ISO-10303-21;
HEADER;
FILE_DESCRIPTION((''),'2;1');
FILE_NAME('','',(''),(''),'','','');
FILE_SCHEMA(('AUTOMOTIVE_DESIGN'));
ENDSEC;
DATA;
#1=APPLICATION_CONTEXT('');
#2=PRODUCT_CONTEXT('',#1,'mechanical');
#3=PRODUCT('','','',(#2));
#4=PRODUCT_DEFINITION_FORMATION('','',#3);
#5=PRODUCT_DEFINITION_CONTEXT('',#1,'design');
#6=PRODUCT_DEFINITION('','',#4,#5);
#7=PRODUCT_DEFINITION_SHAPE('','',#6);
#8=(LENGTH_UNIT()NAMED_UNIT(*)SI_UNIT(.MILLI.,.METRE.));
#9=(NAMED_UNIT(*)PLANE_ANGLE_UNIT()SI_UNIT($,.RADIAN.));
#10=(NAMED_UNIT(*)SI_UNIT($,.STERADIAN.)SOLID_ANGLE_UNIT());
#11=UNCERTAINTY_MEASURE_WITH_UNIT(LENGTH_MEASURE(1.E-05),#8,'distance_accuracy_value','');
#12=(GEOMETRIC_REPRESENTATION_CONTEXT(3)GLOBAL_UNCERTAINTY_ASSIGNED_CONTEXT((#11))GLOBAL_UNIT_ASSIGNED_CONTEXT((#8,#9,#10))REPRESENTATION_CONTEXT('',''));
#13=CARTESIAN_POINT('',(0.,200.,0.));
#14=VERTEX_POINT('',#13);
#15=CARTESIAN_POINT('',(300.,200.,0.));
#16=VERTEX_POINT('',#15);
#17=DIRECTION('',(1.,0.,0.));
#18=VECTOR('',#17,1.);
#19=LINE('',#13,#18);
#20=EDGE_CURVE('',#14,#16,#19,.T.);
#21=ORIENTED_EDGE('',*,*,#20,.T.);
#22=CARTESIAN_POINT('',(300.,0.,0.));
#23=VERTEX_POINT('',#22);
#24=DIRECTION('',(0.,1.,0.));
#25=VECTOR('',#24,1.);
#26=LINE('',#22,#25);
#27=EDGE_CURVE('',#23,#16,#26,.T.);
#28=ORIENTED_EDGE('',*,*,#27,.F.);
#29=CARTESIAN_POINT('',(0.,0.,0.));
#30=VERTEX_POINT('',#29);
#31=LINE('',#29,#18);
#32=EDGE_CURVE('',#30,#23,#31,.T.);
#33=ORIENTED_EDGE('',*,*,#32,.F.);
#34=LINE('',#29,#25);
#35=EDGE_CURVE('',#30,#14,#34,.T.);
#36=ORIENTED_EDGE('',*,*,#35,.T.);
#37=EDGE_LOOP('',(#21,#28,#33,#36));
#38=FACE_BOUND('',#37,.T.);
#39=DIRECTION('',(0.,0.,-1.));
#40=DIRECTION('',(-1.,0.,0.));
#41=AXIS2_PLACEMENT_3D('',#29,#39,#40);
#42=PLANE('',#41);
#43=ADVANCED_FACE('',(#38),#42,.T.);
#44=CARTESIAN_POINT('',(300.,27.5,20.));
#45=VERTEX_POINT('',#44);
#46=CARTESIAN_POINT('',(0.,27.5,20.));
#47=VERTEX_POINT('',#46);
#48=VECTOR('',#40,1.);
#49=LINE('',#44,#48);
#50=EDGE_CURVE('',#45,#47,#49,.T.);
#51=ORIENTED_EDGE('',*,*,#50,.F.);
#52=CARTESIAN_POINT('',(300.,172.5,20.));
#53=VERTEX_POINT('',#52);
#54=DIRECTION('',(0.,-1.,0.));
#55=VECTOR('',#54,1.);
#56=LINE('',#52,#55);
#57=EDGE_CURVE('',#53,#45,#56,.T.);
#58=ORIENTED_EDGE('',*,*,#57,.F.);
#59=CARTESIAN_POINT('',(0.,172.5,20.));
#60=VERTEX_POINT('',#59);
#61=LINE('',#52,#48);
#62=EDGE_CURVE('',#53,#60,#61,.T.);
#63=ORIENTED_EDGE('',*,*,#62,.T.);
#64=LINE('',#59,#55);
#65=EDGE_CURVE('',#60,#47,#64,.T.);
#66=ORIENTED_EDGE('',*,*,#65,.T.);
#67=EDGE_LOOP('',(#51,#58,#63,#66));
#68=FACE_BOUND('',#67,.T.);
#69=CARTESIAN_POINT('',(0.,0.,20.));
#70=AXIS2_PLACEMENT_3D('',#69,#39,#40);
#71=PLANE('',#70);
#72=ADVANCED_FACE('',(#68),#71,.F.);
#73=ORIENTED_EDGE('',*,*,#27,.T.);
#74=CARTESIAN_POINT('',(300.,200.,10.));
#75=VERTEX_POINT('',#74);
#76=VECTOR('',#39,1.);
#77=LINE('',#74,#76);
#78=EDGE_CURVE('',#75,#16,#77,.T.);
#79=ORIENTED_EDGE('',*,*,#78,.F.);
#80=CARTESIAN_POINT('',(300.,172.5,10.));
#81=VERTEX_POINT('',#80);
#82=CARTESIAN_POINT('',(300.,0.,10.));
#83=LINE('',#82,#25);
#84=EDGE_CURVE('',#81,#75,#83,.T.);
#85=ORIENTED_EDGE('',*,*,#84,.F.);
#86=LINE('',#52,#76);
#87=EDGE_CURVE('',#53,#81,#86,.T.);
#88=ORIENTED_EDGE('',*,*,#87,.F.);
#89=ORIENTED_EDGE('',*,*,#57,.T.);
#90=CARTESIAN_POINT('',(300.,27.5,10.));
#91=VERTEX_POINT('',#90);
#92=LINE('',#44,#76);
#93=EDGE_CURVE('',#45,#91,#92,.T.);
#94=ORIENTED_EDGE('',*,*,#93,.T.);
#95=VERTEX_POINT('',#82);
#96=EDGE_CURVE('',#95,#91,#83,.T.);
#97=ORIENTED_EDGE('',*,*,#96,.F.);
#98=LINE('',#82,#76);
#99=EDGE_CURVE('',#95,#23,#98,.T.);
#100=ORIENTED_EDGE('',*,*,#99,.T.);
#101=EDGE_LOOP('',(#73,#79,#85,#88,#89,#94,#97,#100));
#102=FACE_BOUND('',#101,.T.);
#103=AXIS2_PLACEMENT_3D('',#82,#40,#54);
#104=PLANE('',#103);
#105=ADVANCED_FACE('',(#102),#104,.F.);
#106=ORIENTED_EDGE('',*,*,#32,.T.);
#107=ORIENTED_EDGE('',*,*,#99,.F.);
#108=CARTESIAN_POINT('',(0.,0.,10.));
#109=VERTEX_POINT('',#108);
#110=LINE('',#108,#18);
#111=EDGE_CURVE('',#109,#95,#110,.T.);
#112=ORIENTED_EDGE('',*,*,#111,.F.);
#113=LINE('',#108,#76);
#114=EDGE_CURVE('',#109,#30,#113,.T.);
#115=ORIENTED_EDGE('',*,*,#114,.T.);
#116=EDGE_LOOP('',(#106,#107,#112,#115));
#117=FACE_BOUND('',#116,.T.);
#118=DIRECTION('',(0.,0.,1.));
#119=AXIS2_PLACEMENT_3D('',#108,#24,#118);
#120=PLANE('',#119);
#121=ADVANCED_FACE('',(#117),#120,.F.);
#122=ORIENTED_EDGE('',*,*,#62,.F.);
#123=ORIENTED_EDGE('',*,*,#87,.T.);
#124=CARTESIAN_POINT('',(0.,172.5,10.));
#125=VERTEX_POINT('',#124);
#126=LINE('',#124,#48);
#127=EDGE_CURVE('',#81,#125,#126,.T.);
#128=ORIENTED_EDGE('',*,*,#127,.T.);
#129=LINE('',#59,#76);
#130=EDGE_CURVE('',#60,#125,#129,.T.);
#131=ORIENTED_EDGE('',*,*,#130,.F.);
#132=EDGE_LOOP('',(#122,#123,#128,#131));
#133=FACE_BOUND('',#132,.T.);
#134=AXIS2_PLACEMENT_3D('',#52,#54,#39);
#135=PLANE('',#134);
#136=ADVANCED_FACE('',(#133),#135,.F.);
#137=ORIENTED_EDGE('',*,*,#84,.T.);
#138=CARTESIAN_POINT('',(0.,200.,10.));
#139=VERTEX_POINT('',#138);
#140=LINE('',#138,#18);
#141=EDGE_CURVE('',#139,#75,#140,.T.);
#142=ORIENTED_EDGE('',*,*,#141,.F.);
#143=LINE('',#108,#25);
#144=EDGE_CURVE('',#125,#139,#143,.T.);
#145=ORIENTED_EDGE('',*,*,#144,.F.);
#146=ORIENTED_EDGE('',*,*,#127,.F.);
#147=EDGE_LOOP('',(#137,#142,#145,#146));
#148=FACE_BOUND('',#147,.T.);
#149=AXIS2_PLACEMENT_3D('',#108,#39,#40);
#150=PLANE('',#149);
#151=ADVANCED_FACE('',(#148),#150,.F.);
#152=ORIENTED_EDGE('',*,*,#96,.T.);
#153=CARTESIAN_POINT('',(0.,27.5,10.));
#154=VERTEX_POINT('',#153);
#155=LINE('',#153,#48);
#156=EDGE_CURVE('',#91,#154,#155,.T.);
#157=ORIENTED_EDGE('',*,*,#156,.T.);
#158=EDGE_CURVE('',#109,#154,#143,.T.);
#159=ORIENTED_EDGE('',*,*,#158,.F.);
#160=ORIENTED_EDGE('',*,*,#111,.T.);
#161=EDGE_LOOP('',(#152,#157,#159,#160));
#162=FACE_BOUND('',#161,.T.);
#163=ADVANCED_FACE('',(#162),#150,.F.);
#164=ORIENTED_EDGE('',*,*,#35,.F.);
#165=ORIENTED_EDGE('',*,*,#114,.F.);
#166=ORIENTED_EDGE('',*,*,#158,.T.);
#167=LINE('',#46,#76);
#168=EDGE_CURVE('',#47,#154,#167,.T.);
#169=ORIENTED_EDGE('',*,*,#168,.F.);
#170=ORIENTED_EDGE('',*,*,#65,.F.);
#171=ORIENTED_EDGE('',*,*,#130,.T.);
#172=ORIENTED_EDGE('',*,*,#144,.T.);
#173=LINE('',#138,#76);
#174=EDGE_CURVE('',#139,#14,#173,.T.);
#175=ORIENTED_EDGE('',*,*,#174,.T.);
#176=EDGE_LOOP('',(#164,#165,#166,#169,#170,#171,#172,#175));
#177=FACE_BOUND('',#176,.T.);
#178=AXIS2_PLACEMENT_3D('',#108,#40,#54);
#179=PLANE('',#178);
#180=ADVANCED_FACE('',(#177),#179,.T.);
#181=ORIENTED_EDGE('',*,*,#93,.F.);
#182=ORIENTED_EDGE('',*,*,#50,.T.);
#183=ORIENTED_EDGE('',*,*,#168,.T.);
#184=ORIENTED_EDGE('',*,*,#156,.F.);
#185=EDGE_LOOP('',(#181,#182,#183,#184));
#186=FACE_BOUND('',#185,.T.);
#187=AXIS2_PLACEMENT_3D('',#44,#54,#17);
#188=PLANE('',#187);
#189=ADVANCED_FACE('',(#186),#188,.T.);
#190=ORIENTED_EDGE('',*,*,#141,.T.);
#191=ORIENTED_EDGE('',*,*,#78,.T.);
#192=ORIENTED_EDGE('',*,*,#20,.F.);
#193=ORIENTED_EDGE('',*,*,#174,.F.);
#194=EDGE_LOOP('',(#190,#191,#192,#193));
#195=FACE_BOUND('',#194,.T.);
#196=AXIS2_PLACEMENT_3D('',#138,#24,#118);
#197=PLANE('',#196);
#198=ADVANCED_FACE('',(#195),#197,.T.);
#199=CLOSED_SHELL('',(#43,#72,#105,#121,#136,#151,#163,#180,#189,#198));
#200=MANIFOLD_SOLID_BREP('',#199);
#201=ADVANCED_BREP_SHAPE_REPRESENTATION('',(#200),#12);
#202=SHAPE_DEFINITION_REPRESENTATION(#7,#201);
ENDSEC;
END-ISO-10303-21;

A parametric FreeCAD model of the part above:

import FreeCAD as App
import Part
import Sketcher
from FreeCAD import Vector
Q = App.Units.Quantity


def add_polygon(sketch, points):
    """Adds a closed chain of lines whose ends are joined by coincident constraints."""
    first, n = sketch.GeometryCount, len(points)
    for a, b in zip(points, points[1:] + points[:1]):
        sketch.addGeometry(Part.LineSegment(App.Vector(*a, 0), App.Vector(*b, 0)), False)
    for i in range(n):
        sketch.addConstraint(Sketcher.Constraint("Coincident", first + i, 2, first + (i + 1) % n, 1))

doc = App.newDocument("Part")
body = doc.addObject("PartDesign::Body", "Body")

sketch1 = doc.addObject("Sketcher::SketchObject", "Sketch")
body.addObject(sketch1)
sketch1.AttachmentSupport = (doc.XY_Plane, [""])
sketch1.MapMode = "FlatFace"
add_polygon(sketch1, [(0, 200), (0, 0), (300, 0), (300, 200)])
sketch1.addConstraint(Sketcher.Constraint("Vertical", 0))
sketch1.addConstraint(Sketcher.Constraint("Horizontal", 1))
sketch1.addConstraint(Sketcher.Constraint("Vertical", 2))
sketch1.addConstraint(Sketcher.Constraint("Horizontal", 3))
sketch1.addConstraint(Sketcher.Constraint("Coincident", 0, 2, -1, 1))
sketch1.addConstraint(Sketcher.Constraint("DistanceX", 1, 1, 1, 2, Q("300 mm")))
sketch1.addConstraint(Sketcher.Constraint("DistanceY", 0, 2, 0, 1, Q("200 mm")))
pad1 = doc.addObject("PartDesign::Pad", "Pad")
body.addObject(pad1)
pad1.Profile = sketch1
pad1.Length = 10

sketch2 = doc.addObject("Sketcher::SketchObject", "Sketch001")
body.addObject(sketch2)
sketch2.AttachmentSupport = (doc.XY_Plane, [""])
sketch2.MapMode = "FlatFace"
add_polygon(sketch2, [(0, 172), (0, 28), (300, 28), (300, 172)])
sketch2.addConstraint(Sketcher.Constraint("Vertical", 0))
sketch2.addConstraint(Sketcher.Constraint("Horizontal", 1))
sketch2.addConstraint(Sketcher.Constraint("Vertical", 2))
sketch2.addConstraint(Sketcher.Constraint("Horizontal", 3))
sketch2.addConstraint(Sketcher.Constraint("PointOnObject", 0, 2, -2))
sketch2.addConstraint(Sketcher.Constraint("DistanceX", 1, 1, 1, 2, Q("300 mm")))
sketch2.addConstraint(Sketcher.Constraint("DistanceY", 0, 2, 0, 1, Q("145 mm")))
sketch2.addConstraint(Sketcher.Constraint("DistanceY", -1, 1, 0, 2, Q("27.5 mm")))
pad2 = doc.addObject("PartDesign::Pad", "Pad001")
body.addObject(pad2)
pad2.Profile = sketch2
pad2.Length = 20

doc.recompute()
